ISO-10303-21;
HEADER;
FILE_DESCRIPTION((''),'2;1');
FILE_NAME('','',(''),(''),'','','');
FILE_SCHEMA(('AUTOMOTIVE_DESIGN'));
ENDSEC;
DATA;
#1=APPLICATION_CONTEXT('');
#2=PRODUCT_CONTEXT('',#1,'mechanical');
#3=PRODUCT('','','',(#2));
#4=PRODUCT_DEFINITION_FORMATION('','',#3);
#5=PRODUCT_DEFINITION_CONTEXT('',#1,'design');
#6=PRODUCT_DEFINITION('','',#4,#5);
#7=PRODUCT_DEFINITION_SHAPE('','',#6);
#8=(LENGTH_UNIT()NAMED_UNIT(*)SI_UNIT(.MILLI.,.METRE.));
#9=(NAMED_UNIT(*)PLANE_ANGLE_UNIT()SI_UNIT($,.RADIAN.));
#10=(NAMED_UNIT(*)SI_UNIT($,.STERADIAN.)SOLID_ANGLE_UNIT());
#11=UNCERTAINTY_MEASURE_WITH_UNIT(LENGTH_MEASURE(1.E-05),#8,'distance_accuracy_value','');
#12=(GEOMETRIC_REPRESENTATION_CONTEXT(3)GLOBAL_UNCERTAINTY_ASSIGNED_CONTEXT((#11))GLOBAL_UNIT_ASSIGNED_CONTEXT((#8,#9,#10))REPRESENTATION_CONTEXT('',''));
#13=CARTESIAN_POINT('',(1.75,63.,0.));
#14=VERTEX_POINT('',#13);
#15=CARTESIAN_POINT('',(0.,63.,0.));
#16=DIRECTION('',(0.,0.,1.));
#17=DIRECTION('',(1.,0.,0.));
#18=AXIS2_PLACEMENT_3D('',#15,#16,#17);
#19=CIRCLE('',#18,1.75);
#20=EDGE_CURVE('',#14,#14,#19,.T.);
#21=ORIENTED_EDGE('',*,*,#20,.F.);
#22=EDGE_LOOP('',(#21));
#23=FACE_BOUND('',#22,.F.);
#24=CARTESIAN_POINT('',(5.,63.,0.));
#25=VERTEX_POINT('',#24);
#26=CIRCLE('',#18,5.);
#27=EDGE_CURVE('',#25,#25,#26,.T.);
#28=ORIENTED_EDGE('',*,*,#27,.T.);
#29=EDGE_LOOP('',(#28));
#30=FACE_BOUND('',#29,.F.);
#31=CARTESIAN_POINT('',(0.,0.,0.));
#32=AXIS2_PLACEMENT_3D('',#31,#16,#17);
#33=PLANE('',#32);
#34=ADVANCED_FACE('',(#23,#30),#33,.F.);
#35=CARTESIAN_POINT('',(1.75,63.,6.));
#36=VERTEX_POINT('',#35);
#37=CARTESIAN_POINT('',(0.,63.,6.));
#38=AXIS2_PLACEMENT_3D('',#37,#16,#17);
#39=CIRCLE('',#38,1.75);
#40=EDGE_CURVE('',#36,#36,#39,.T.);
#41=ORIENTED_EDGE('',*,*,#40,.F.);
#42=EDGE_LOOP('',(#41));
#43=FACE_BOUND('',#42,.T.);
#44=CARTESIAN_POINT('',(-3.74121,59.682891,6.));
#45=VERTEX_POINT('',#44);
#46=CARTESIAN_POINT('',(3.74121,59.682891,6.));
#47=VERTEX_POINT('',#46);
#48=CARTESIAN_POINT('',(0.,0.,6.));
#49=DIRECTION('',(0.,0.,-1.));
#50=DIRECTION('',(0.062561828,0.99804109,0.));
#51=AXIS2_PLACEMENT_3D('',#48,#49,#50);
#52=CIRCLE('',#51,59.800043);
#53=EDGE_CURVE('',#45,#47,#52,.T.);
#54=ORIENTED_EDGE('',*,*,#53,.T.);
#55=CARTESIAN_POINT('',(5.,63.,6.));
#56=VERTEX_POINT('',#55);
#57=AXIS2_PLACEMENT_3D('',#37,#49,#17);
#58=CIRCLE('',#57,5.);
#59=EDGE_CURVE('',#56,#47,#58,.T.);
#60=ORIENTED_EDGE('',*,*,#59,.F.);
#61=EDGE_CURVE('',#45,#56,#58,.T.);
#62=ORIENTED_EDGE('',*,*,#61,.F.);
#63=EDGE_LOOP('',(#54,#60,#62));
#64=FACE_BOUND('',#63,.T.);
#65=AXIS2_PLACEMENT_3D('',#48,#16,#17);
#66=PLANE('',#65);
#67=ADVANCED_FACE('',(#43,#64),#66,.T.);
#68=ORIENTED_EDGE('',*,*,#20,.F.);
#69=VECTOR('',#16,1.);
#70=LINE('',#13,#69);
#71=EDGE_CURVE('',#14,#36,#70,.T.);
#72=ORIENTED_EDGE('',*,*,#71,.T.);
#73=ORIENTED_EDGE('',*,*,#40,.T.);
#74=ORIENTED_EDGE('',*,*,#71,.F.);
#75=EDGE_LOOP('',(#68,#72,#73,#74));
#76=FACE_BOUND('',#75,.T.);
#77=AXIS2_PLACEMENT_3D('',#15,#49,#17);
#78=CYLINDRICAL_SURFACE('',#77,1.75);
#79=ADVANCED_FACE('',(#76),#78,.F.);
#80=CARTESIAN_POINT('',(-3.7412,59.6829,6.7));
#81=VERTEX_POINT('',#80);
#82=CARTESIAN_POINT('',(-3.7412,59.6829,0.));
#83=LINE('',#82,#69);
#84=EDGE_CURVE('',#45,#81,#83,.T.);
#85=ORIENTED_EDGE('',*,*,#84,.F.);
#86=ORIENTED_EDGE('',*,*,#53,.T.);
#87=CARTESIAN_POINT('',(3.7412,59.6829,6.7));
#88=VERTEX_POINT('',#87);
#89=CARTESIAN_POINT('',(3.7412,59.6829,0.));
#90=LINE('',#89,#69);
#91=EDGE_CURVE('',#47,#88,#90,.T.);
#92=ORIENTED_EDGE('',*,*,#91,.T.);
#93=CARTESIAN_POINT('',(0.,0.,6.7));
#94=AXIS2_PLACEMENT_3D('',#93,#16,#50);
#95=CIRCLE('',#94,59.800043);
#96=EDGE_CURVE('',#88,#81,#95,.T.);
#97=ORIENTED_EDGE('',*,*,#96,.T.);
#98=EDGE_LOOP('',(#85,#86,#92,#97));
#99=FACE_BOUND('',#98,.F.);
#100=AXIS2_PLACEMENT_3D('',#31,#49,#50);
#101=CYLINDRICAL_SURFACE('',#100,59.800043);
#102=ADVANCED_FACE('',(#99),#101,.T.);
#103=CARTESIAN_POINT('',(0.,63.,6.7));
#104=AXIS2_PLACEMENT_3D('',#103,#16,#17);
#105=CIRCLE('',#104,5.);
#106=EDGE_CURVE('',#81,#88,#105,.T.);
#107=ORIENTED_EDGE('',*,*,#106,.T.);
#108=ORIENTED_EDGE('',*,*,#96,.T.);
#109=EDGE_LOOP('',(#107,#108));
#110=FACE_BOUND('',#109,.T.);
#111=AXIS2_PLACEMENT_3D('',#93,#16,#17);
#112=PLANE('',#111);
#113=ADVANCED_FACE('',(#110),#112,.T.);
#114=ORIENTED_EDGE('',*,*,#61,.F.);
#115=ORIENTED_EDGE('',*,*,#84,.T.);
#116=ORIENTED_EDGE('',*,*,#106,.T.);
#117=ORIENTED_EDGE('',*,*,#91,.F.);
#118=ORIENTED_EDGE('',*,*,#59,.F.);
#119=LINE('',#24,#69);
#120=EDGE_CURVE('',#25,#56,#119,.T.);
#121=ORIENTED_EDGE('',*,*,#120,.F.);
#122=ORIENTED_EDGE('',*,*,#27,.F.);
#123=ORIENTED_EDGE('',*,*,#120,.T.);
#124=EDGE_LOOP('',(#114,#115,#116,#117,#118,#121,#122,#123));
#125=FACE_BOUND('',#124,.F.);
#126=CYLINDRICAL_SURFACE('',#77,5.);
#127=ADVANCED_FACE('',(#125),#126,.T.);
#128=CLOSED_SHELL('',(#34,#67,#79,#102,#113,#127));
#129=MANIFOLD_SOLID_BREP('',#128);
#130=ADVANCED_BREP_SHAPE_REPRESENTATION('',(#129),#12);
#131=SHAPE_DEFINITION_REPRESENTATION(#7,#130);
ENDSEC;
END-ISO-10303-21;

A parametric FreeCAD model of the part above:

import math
import FreeCAD as App
import Part
import Sketcher
from FreeCAD import Vector

doc = App.newDocument("Part")
body = doc.addObject("PartDesign::Body", "Body")

# Sketch on XY plane
sketch1 = body.newObject("Sketcher::SketchObject", "Sketch")
sketch1.AttachmentSupport = (doc.getObject("XY_Plane"), [""])
sketch1.MapMode = "FlatFace"
sketch1.addGeometry([
    Part.Circle(Vector(0, 63, 0), Vector(0, 0, 1), 5),
    Part.Circle(Vector(0, 63, 0), Vector(0, 0, 1), 1.8),
], False)
sketch1.addConstraint([
    Sketcher.Constraint("Coincident", 1, 3, 0, 3),
    Sketcher.Constraint("PointOnObject", 0, 3, -2),
    Sketcher.Constraint("Diameter", 0, 10.0),
    Sketcher.Constraint("Diameter", 1, 3.5),
    Sketcher.Constraint("DistanceY", -1, 1, 0, 3, 63.0),
])
pad1 = body.newObject("PartDesign::Pad", "Pad")
pad1.Profile = sketch1
pad1.Length = 6

# Sketch on XY plane
sketch2 = body.newObject("Sketcher::SketchObject", "Sketch001")
sketch2.AttachmentSupport = (doc.getObject("XY_Plane"), [""])
sketch2.MapMode = "FlatFace"
sketch2.addGeometry([
    Part.ArcOfCircle(Part.Circle(Vector(0, 0, 0), Vector(0, 0, 1), 60), math.radians(86.41), math.radians(93.59)),
    Part.ArcOfCircle(Part.Circle(Vector(0, 63, 0), Vector(0, 0, 1), 5), math.radians(-138), math.radians(-42)),
], False)
sketch2.addConstraint([
    Sketcher.Constraint("Coincident", 0, 1, 1, 2),
    Sketcher.Constraint("Coincident", 1, 1, 0, 2),
    Sketcher.Constraint("Coincident", 0, 3, -1, 1),
    Sketcher.Constraint("PointOnObject", 1, 3, -2),
    Sketcher.Constraint("Radius", 1, 5.0),
    Sketcher.Constraint("Radius", 0, 59.8),
    Sketcher.Constraint("DistanceY", -1, 1, 1, 3, 63.0),
])
pad2 = body.newObject("PartDesign::Pad", "Pad001")
pad2.Profile = sketch2
pad2.Length = 6.7

doc.recompute()
